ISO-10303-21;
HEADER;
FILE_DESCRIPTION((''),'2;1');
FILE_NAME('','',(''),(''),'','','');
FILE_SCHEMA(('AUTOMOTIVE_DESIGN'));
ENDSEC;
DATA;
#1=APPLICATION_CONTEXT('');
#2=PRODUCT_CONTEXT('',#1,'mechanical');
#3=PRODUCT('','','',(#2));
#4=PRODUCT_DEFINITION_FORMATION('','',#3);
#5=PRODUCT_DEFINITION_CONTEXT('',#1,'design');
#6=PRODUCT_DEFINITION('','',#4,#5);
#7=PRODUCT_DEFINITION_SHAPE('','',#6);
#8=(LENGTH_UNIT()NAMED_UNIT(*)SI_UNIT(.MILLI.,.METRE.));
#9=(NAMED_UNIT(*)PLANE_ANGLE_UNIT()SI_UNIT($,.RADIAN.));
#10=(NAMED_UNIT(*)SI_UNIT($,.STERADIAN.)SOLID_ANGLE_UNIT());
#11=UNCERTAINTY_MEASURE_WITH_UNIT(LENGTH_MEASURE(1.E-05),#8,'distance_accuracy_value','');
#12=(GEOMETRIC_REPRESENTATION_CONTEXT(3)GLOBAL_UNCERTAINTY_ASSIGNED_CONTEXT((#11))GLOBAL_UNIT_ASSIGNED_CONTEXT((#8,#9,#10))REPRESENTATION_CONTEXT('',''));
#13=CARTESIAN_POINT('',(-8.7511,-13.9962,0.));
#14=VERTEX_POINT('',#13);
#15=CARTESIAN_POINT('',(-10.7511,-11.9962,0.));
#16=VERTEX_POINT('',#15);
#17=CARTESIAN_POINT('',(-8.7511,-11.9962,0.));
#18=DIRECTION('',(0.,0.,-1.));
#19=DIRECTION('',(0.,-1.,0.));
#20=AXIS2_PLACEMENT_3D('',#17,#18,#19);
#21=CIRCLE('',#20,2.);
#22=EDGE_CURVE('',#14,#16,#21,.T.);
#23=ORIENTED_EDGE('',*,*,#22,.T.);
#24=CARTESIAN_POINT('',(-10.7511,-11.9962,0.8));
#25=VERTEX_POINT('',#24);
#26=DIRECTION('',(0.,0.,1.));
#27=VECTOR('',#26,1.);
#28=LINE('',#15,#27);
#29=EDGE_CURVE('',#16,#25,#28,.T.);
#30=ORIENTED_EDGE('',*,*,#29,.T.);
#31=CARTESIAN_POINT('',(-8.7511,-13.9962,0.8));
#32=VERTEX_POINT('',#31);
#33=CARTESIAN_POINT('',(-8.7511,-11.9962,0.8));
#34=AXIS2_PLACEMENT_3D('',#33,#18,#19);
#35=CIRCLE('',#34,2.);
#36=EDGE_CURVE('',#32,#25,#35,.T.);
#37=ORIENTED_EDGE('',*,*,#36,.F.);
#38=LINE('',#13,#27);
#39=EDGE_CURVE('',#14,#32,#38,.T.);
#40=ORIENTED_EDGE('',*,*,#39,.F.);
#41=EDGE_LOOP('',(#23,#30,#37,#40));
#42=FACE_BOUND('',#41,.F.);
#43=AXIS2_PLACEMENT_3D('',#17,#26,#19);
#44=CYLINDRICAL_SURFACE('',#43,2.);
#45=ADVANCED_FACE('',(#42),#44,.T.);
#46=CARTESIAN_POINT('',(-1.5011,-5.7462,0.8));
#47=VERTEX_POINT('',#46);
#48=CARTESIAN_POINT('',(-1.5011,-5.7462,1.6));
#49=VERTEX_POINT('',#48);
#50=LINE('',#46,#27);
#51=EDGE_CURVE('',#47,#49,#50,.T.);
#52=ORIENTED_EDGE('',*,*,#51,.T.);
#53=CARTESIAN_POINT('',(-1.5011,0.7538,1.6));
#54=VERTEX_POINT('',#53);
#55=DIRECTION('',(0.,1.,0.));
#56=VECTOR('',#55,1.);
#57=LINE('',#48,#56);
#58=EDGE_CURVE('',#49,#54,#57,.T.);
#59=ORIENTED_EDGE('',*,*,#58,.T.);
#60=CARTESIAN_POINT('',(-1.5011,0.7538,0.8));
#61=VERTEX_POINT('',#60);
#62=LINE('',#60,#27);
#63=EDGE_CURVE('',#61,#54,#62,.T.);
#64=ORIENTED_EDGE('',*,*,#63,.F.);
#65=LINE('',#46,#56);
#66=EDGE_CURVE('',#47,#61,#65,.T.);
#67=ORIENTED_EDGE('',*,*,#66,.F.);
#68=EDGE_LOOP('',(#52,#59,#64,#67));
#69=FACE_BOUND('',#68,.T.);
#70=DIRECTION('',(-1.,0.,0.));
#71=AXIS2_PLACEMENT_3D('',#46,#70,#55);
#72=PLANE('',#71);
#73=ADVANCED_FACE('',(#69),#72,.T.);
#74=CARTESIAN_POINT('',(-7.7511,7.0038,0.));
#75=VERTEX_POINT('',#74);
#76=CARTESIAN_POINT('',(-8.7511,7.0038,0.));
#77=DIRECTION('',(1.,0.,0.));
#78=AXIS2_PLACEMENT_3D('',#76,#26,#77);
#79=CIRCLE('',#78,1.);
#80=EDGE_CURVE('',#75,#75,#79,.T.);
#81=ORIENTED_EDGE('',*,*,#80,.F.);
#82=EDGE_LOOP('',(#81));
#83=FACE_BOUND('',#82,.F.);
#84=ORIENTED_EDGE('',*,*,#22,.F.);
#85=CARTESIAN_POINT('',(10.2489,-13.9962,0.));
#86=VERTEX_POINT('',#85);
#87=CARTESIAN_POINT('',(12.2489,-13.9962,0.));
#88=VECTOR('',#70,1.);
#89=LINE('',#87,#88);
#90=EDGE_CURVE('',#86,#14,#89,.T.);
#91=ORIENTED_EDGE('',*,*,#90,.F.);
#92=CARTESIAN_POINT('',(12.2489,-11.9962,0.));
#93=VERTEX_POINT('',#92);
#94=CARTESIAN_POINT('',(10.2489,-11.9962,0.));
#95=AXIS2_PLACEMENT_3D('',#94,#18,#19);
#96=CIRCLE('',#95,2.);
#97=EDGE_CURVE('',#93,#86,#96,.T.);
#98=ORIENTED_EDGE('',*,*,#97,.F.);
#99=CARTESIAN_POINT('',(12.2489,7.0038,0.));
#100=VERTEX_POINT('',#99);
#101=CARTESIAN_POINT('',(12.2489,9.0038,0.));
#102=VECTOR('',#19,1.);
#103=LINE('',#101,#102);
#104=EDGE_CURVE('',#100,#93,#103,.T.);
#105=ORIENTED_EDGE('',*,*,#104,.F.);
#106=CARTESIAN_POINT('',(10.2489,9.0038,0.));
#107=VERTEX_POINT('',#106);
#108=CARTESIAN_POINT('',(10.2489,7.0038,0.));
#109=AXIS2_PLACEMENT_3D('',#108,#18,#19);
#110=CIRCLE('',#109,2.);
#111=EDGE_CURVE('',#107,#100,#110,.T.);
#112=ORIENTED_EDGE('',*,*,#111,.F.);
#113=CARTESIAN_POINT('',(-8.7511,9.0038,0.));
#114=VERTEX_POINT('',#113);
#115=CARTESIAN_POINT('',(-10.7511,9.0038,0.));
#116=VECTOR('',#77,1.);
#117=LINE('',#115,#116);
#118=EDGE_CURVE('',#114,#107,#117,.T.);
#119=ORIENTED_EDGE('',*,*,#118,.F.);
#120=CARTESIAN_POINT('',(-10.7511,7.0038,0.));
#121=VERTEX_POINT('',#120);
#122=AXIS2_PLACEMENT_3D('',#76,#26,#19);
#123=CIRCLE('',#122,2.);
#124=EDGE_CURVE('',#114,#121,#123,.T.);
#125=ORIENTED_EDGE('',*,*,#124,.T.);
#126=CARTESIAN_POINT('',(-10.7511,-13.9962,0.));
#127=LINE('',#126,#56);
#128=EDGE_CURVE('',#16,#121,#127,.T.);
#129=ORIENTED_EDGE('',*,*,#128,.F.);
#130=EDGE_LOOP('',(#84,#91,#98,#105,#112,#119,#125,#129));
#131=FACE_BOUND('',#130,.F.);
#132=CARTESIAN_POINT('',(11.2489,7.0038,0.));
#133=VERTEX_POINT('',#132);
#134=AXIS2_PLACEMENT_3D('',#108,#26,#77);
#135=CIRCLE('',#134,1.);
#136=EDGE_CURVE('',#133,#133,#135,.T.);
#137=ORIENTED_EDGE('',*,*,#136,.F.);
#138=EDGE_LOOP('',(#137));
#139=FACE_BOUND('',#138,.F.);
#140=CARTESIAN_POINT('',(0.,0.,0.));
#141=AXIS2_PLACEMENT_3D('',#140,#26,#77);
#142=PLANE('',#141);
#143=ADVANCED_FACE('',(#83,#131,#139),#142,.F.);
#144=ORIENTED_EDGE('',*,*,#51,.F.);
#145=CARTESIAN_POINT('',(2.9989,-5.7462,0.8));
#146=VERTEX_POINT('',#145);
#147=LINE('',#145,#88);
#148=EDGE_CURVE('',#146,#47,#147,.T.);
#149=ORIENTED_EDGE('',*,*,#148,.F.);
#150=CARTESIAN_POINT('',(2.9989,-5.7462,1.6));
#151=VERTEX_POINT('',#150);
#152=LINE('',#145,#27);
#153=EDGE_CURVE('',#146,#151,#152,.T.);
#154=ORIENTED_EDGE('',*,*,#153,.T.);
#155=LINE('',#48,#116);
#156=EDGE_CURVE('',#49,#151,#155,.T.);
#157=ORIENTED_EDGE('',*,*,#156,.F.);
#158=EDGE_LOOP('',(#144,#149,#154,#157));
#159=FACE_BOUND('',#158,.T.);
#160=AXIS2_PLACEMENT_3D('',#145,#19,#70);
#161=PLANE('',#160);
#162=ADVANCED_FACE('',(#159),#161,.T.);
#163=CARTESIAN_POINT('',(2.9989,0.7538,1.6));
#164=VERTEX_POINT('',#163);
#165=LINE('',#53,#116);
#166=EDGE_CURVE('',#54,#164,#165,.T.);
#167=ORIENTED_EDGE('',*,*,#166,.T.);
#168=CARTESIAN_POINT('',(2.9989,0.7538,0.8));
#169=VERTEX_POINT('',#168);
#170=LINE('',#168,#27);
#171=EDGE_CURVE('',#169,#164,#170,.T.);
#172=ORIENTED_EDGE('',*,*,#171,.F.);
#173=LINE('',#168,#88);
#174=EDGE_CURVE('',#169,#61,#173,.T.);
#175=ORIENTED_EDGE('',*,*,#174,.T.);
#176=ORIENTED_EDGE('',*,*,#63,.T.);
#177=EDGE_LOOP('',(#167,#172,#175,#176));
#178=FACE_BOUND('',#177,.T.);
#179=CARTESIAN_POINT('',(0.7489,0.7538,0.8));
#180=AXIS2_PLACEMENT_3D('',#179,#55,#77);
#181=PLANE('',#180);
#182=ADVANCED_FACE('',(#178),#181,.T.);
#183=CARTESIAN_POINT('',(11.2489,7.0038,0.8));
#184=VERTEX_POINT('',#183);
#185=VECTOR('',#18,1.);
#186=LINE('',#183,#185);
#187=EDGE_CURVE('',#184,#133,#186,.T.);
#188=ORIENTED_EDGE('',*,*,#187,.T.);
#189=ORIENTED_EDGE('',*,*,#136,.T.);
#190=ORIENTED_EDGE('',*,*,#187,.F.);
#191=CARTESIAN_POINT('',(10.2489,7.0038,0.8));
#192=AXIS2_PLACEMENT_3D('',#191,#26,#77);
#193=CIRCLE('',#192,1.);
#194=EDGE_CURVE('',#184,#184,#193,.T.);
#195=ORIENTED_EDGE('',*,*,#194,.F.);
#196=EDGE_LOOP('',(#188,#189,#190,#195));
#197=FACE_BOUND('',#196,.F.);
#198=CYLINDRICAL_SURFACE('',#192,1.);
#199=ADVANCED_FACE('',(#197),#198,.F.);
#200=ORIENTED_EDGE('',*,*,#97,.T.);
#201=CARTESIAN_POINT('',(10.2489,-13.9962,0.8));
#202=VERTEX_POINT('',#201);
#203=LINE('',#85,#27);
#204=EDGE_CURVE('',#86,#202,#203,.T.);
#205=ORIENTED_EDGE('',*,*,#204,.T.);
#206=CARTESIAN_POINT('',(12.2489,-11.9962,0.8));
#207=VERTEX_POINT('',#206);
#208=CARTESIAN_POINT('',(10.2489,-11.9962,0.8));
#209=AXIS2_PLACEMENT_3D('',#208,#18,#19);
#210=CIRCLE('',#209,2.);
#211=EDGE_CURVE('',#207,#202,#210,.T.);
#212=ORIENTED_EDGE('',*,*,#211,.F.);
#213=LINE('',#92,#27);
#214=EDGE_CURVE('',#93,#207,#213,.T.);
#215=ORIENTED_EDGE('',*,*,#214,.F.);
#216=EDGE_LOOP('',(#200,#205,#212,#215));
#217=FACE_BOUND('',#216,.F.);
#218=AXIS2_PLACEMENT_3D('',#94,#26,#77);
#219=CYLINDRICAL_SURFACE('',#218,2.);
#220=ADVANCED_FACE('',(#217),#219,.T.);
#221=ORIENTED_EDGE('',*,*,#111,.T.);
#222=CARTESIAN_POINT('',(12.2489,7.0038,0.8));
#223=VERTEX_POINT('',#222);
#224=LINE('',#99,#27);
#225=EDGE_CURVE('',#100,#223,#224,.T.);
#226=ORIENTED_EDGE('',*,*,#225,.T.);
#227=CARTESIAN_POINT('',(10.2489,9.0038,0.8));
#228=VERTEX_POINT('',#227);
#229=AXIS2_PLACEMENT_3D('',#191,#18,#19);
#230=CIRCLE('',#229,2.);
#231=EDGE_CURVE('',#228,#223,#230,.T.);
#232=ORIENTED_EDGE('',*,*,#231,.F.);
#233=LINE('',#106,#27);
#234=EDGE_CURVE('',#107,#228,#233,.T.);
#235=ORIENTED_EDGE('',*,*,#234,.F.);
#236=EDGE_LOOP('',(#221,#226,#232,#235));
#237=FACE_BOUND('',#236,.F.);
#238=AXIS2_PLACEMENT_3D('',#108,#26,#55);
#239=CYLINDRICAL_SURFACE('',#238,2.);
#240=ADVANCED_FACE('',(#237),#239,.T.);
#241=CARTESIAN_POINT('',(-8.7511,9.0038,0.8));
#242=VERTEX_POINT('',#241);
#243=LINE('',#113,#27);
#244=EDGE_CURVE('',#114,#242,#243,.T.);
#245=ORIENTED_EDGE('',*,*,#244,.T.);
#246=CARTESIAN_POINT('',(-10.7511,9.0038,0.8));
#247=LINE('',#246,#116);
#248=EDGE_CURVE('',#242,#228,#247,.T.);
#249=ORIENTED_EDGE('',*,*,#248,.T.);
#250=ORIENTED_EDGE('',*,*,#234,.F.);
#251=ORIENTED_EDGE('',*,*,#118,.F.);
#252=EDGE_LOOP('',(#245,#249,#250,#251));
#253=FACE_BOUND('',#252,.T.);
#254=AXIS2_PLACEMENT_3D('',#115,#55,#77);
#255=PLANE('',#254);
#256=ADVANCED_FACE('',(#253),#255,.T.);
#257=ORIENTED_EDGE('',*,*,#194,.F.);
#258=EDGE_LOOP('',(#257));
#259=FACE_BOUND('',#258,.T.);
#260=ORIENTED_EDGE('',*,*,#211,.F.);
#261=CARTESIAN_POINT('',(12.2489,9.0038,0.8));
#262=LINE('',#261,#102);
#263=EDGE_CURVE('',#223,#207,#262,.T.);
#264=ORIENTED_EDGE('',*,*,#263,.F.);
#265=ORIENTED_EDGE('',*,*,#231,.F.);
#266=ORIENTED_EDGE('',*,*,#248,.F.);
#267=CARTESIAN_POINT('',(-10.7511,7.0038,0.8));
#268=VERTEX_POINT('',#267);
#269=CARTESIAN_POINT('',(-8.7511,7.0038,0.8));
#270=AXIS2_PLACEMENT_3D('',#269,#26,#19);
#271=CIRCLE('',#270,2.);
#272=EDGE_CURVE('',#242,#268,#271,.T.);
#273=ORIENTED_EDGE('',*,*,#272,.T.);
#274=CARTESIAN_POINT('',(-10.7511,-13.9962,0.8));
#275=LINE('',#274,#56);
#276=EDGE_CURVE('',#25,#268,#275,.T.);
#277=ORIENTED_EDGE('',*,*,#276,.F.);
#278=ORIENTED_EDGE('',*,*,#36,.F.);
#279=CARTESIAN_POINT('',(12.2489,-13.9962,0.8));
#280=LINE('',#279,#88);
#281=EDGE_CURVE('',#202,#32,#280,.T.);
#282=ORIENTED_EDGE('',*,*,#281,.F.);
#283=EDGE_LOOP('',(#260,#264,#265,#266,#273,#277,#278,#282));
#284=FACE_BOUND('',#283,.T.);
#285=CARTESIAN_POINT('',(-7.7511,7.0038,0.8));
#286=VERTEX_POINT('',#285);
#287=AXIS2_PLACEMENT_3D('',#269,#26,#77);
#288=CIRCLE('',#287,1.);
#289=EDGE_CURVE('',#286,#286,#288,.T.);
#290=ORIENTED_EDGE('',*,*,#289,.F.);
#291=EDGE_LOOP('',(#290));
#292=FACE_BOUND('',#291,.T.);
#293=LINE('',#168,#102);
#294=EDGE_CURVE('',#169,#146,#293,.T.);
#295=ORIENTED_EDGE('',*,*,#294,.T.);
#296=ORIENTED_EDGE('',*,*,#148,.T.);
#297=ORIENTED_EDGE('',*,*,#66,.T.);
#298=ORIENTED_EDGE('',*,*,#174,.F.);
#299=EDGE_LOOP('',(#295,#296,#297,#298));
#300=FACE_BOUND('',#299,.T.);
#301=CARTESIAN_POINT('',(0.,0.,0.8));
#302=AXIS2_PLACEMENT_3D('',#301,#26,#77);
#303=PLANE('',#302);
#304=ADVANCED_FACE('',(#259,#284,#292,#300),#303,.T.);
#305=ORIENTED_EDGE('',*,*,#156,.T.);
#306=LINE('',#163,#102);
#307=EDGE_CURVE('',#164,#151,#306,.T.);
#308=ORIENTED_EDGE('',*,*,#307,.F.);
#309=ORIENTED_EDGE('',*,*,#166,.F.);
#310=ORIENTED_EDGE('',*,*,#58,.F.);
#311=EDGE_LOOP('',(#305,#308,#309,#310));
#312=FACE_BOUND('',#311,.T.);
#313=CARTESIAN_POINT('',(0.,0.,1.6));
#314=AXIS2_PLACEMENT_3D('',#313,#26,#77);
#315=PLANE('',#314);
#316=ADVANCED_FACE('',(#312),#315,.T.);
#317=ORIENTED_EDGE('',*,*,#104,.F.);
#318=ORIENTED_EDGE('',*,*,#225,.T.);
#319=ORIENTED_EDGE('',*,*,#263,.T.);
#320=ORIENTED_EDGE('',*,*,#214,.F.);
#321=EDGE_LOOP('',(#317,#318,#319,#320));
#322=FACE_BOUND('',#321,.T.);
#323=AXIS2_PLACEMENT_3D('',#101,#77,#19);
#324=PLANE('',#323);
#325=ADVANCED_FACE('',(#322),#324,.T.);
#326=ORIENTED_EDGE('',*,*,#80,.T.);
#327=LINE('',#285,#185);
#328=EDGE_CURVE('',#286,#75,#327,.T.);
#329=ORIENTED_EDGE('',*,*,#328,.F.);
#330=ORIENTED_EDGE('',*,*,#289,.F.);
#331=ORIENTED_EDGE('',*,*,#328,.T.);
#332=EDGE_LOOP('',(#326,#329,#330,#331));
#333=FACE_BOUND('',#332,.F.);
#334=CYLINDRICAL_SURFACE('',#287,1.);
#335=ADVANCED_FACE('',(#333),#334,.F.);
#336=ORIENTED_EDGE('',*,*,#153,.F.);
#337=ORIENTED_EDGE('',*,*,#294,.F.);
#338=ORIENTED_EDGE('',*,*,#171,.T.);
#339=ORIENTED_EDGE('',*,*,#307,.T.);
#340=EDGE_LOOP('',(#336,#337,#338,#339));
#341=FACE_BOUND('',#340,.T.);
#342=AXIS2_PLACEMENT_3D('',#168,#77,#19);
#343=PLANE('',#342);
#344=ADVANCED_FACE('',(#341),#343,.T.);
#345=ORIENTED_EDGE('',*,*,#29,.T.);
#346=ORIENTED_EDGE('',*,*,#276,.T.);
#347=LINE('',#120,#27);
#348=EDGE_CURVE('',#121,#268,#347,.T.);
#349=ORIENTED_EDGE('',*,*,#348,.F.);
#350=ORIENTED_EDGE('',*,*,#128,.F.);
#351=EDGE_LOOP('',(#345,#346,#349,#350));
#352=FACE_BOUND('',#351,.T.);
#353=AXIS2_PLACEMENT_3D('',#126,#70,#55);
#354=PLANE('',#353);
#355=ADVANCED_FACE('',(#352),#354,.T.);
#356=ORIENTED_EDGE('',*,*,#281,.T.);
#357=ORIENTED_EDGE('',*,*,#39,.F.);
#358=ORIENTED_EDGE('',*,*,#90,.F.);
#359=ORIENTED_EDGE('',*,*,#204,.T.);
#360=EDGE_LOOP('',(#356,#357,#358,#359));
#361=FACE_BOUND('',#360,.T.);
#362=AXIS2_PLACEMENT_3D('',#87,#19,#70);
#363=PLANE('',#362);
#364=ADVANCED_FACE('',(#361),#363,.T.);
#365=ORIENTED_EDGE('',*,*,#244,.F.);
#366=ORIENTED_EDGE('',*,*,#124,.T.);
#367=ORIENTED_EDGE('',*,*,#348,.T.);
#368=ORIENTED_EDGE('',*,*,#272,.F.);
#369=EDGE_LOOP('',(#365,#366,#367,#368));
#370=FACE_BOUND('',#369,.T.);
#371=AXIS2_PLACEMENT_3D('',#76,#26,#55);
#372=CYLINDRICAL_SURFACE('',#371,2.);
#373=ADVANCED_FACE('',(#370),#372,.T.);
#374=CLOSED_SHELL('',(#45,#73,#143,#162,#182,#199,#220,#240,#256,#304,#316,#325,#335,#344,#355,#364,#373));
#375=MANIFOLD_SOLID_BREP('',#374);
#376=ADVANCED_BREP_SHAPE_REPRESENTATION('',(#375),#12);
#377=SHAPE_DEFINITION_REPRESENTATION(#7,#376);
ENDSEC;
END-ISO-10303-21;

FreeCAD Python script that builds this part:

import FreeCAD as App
import Part
import Sketcher
Q = App.Units.Quantity


def edges_at(feature, points):
    """Names of the edges that pass closest to the given points."""
    edges = feature.Shape.Edges
    near = lambda p: min(range(len(edges)), key=lambda i: edges[i].distToShape(Part.Vertex(*p))[0])
    return sorted({f"Edge{near(p) + 1}" for p in points})


def add_polygon(sketch, points):
    """Adds a closed chain of lines whose ends are joined by coincident constraints."""
    first, n = sketch.GeometryCount, len(points)
    for a, b in zip(points, points[1:] + points[:1]):
        sketch.addGeometry(Part.LineSegment(App.Vector(*a, 0), App.Vector(*b, 0)), False)
    for i in range(n):
        sketch.addConstraint(Sketcher.Constraint("Coincident", first + i, 2, first + (i + 1) % n, 1))

doc = App.newDocument("Part")
params = doc.addObject("Spreadsheet::Sheet", "Params")
for row, (alias, value) in enumerate([
    ("sketch1_width", "23 mm"),
    ("pad1_length", "0.8 mm"),
    ("fillet_radius", "2 mm"),
    ("sketch2_diameter", "2 mm"),
    ("pocket1_length", "0.8 mm"),
    ("sketch3_width", "4.5 mm"),
    ("sketch3_height", "6.5 mm"),
    ("pad2_length", "0.8 mm"),
], start=1):
    params.set(f"A{row}", alias)
    params.set(f"B{row}", "=" + value)
    params.setAlias(f"B{row}", alias)

body = doc.addObject("PartDesign::Body", "Body")

sketch1 = body.newObject("Sketcher::SketchObject", "Sketch")
sketch1.AttachmentSupport = (doc.getObject("XY_Plane"), [""])
sketch1.MapMode = "FlatFace"
add_polygon(sketch1, [(12.2489, 9.0038), (-10.7511, 9.0038), (-10.7511, -13.9962), (12.2489, -13.9962)])
sketch1.addConstraint([
    Sketcher.Constraint("Horizontal", 0),
    Sketcher.Constraint("Vertical", 1),
    Sketcher.Constraint("Horizontal", 2),
    Sketcher.Constraint("Vertical", 3),
    Sketcher.Constraint("Equal", 2, 1),
    Sketcher.Constraint("DistanceX", 0, 2, 0, 1, Q("23 mm")),
    Sketcher.Constraint("DistanceX", 0, 2, -1, 1, Q("10.751 mm")),
    Sketcher.Constraint("DistanceY", -1, 1, 0, 2, Q("9.0038 mm")),
])
sketch1.setExpression("Constraints[9]", "Params.sketch1_width")
pad1 = body.newObject("PartDesign::Pad", "Pad")
pad1.Profile = sketch1
pad1.setExpression("Length", "Params.pad1_length")
doc.recompute()

fillet = body.newObject("PartDesign::Fillet", "Fillet")
fillet.Base = (pad1, edges_at(pad1, [
    (12.249, 9.004, 0.4),
    (-10.751, 9.004, 0.4),
    (12.249, -13.996, 0.4),
    (-10.751, -13.996, 0.4),
]))
fillet.setExpression("Radius", "Params.fillet_radius")

sketch2 = body.newObject("Sketcher::SketchObject", "Sketch001")
sketch2.AttachmentSupport = (doc.getObject("XY_Plane"), [""])
sketch2.MapMode = "FlatFace"
sketch2.AttachmentOffset = App.Placement(App.Vector(0, 0, 0.8), App.Rotation())
sketch2.addGeometry([
    Part.Circle(App.Vector(-8.7511, 7.0038, 0), App.Vector(0, 0, 1), 1),
    Part.Circle(App.Vector(10.2489, 7.0038, 0), App.Vector(0, 0, 1), 1),
], False)
sketch2.addConstraint([
    Sketcher.Constraint("Equal", 0, 1),
    Sketcher.Constraint("Horizontal", 0, 3, 1, 3),
    Sketcher.Constraint("Diameter", 0, Q("2 mm")),
    Sketcher.Constraint("DistanceX", 0, 3, 1, 3, Q("19 mm")),
    Sketcher.Constraint("DistanceX", 0, 3, -1, 1, Q("8.751 mm")),
    Sketcher.Constraint("DistanceY", -1, 1, 0, 3, Q("7.0038 mm")),
])
sketch2.setExpression("Constraints[2]", "Params.sketch2_diameter")
pocket1 = body.newObject("PartDesign::Pocket", "Pocket")
pocket1.Profile = sketch2
pocket1.setExpression("Length", "Params.pocket1_length")

sketch3 = body.newObject("Sketcher::SketchObject", "Sketch002")
sketch3.AttachmentSupport = (doc.getObject("XY_Plane"), [""])
sketch3.MapMode = "FlatFace"
sketch3.AttachmentOffset = App.Placement(App.Vector(0, 0, 0.8), App.Rotation())
add_polygon(sketch3, [(2.9989, 0.7538), (-1.5011, 0.7538), (-1.5011, -5.7462), (2.9989, -5.7462)])
sketch3.addConstraint([
    Sketcher.Constraint("Horizontal", 0),
    Sketcher.Constraint("Vertical", 1),
    Sketcher.Constraint("Horizontal", 2),
    Sketcher.Constraint("Vertical", 3),
    Sketcher.Constraint("DistanceX", 0, 2, 0, 1, Q("4.5 mm")),
    Sketcher.Constraint("DistanceY", 1, 2, 1, 1, Q("6.5 mm")),
    Sketcher.Constraint("DistanceX", 0, 2, -1, 1, Q("1.501 mm")),
    Sketcher.Constraint("DistanceY", -1, 1, 0, 2, Q("0.7538 mm")),
])
sketch3.setExpression("Constraints[8]", "Params.sketch3_width")
sketch3.setExpression("Constraints[9]", "Params.sketch3_height")
pad2 = body.newObject("PartDesign::Pad", "Pad001")
pad2.Profile = sketch3
pad2.setExpression("Length", "Params.pad2_length")

doc.recompute()
